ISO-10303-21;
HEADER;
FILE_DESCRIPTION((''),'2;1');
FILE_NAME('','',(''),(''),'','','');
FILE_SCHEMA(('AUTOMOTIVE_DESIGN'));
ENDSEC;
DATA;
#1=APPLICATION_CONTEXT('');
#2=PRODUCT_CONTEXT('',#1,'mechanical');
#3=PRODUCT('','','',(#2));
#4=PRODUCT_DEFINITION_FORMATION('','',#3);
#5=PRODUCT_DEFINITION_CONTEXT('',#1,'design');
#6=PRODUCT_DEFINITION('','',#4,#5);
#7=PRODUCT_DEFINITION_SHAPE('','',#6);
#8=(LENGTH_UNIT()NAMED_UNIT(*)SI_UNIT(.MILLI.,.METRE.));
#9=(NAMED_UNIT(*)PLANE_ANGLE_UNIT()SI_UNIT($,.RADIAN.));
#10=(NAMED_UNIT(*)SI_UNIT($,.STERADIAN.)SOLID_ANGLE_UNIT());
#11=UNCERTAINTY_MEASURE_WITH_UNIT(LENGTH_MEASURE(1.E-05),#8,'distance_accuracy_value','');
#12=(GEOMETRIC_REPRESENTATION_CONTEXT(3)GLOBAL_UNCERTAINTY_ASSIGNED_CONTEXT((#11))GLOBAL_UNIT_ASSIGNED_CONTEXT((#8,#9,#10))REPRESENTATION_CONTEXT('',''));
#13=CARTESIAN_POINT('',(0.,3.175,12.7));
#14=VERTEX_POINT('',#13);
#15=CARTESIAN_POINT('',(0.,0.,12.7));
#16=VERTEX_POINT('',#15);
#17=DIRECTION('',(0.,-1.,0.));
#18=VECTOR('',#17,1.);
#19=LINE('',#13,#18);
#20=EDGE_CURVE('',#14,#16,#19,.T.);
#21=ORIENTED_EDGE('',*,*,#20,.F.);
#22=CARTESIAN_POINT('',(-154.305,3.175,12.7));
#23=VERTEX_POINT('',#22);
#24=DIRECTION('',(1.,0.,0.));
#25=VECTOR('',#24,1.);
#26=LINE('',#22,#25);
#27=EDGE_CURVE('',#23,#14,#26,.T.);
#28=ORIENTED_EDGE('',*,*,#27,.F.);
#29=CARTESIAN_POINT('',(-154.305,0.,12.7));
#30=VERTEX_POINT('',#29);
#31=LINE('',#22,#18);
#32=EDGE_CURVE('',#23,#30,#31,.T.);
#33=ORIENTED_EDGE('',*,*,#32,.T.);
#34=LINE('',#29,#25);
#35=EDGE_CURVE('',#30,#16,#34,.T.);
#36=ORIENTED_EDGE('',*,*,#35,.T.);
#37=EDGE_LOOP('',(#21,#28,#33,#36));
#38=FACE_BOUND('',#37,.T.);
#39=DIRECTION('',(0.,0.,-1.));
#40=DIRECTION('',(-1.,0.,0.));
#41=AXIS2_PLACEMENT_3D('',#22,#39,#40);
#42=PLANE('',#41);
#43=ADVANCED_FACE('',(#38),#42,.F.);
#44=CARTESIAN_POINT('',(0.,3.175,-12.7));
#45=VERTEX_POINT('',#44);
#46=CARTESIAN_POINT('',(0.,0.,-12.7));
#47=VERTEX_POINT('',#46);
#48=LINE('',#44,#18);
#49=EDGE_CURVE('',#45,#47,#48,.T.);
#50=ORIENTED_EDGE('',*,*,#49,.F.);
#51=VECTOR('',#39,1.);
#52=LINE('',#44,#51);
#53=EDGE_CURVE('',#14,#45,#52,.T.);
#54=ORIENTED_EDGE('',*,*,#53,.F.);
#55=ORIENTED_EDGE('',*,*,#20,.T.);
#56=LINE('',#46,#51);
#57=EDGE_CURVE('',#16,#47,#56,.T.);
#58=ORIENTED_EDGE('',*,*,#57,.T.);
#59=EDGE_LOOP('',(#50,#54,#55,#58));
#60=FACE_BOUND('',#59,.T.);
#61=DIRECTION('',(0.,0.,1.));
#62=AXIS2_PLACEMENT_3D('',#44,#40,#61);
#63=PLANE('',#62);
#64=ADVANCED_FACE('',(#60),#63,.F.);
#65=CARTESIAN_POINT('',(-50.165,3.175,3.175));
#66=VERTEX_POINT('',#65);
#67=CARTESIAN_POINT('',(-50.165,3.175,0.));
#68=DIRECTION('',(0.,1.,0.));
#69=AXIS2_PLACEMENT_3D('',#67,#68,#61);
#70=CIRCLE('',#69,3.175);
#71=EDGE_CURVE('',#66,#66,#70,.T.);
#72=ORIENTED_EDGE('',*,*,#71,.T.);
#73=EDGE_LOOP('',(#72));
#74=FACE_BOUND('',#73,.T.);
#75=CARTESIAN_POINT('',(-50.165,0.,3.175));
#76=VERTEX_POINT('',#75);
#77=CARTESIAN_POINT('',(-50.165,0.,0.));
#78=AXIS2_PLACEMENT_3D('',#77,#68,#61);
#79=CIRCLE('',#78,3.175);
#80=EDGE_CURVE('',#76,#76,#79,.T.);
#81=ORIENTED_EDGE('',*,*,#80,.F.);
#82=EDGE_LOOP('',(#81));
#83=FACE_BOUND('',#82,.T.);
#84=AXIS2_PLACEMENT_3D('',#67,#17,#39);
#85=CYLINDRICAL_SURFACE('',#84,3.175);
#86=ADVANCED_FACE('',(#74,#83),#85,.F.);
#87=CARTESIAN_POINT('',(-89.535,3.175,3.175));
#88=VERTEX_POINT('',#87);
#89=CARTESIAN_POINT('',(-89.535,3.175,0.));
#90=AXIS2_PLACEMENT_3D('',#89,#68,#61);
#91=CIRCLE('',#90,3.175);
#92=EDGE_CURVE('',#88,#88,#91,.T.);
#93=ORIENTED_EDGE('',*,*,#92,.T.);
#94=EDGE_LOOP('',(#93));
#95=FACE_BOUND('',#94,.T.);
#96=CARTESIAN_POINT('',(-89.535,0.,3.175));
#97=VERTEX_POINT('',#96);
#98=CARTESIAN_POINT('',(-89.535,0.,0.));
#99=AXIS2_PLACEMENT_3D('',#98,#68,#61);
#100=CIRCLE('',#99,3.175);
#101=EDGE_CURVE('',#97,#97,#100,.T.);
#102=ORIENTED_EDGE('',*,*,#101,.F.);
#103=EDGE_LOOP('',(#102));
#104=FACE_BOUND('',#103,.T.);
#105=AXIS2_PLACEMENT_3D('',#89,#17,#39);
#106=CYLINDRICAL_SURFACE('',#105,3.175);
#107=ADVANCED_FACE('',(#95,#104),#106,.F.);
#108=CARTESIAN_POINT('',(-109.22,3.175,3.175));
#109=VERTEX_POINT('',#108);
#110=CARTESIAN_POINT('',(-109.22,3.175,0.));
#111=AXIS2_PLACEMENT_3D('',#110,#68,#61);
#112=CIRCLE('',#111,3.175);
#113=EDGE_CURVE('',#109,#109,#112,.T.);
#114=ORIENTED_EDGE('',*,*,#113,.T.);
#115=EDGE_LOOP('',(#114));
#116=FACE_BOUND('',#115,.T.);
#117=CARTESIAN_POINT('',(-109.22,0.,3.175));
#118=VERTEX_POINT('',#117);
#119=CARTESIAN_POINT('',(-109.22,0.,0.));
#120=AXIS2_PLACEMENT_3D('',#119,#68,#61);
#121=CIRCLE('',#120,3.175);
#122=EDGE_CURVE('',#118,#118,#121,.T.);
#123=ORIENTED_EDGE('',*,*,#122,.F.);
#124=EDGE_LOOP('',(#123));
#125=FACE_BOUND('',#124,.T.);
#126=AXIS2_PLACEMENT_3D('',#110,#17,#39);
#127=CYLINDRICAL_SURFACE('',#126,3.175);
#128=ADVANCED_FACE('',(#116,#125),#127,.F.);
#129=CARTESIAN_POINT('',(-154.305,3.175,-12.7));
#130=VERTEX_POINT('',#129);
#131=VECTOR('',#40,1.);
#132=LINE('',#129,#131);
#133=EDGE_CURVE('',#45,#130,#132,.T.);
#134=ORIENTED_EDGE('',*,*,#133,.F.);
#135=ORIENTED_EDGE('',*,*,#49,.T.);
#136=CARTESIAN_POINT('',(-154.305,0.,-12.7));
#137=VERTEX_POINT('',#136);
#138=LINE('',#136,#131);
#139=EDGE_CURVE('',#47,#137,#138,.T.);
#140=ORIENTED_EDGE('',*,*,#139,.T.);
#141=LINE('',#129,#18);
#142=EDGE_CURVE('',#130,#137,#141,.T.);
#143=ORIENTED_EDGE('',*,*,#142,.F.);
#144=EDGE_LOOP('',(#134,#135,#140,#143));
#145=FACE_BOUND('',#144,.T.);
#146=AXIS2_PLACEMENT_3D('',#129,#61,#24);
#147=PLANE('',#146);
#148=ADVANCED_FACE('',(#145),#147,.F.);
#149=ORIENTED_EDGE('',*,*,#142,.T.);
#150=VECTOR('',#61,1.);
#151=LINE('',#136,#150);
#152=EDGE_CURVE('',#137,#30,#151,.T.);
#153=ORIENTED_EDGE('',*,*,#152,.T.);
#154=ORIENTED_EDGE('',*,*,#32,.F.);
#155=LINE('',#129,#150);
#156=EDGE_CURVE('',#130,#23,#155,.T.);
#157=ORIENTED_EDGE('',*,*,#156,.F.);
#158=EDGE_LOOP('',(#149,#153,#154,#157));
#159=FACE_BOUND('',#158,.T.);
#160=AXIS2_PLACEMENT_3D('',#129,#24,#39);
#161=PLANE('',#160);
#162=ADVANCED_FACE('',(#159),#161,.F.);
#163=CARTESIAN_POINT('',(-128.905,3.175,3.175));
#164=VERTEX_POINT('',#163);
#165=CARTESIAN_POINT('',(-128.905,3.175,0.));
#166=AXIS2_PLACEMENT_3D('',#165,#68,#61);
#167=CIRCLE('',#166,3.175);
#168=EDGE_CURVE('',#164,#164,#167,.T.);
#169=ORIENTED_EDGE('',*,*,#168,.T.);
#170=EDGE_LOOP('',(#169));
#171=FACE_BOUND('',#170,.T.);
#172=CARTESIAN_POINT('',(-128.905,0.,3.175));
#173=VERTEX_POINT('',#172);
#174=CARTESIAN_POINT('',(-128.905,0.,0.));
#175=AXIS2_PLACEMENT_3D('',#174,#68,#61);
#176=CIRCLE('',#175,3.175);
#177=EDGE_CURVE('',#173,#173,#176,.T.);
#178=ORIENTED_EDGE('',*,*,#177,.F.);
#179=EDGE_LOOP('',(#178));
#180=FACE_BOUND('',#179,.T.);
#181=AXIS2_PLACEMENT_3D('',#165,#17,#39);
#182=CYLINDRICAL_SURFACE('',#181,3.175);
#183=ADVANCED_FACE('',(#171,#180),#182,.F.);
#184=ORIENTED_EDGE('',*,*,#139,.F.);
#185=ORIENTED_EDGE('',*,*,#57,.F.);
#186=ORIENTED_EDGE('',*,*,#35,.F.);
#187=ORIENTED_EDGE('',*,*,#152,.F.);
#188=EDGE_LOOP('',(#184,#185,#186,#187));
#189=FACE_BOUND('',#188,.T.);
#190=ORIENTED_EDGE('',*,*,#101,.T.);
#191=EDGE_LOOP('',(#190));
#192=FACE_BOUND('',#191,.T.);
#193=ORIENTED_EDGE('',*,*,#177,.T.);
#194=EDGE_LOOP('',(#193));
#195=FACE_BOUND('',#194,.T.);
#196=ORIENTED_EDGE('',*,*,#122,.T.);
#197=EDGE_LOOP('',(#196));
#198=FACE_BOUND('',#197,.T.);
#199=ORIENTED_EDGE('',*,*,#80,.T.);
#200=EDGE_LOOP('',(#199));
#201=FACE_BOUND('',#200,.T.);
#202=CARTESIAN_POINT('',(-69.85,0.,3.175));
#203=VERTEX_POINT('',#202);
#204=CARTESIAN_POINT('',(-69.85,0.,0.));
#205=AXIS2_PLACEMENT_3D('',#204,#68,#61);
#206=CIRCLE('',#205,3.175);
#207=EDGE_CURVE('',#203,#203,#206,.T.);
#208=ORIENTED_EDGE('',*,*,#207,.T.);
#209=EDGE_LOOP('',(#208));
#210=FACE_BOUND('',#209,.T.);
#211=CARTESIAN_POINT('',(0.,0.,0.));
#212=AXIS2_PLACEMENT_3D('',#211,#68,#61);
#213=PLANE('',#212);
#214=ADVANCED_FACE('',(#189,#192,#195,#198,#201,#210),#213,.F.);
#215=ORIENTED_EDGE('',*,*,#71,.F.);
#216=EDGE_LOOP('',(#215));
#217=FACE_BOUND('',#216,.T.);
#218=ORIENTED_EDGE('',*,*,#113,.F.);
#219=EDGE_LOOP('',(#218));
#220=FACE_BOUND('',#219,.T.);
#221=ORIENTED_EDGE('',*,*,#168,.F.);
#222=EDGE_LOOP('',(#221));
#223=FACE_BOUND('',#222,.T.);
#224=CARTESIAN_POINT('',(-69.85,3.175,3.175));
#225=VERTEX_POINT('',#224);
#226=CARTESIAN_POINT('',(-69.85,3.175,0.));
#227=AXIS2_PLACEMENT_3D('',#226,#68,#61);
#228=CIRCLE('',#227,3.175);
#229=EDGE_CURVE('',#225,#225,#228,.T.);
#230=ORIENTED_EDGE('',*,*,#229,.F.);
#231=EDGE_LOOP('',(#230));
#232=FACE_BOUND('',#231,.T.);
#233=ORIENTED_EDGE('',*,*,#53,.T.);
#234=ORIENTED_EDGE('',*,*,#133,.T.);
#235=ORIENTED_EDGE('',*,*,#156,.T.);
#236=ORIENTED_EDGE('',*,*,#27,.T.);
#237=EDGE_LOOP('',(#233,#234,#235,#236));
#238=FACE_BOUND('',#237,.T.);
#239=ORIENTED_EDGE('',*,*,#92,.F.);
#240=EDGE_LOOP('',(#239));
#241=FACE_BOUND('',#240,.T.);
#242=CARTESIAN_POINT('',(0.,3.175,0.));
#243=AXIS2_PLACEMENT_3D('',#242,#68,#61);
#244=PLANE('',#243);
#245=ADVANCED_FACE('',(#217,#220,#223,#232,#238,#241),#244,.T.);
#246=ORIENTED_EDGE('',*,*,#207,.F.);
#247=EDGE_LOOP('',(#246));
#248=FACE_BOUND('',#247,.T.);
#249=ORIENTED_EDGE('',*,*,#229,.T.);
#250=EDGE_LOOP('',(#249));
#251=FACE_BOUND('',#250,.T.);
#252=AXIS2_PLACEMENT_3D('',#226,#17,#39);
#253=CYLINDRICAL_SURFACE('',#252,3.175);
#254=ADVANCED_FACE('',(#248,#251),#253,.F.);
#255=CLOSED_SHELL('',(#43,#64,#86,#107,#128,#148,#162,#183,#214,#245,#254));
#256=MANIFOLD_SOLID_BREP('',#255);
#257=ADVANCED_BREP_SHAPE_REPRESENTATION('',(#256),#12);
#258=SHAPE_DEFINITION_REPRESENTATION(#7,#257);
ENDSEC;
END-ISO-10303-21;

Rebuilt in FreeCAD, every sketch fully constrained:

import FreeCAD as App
import Part
import Sketcher
from FreeCAD import Vector
Q = App.Units.Quantity

doc = App.newDocument("Part")
body = doc.addObject("PartDesign::Body", "Body")

# Sketch on XZ plane
sketch1 = body.newObject("Sketcher::SketchObject", "Sketch")
sketch1.AttachmentSupport = (doc.getObject("XZ_Plane"), [""])
sketch1.MapMode = "FlatFace"
sketch1.addGeometry(Part.LineSegment(Vector(-154.305, -12.7, 0), Vector(-154.305, 12.7, 0)), False)
sketch1.addGeometry(Part.LineSegment(Vector(-154.305, 12.7, 0), Vector(0, 12.7, 0)), False)
sketch1.addGeometry(Part.LineSegment(Vector(0, 12.7, 0), Vector(0, -12.7, 0)), False)
sketch1.addGeometry(Part.LineSegment(Vector(0, -12.7, 0), Vector(-154.305, -12.7, 0)), False)
sketch1.addGeometry(Part.Circle(Vector(-128.905, 0, 0), Vector(0, 0, 1), 3.175), False)
sketch1.addGeometry(Part.Circle(Vector(-109.22, 0, 0), Vector(0, 0, 1), 3.175), False)
sketch1.addGeometry(Part.Circle(Vector(-89.535, 0, 0), Vector(0, 0, 1), 3.175), False)
sketch1.addGeometry(Part.Circle(Vector(-69.85, 0, 0), Vector(0, 0, 1), 3.175), False)
sketch1.addGeometry(Part.Circle(Vector(-50.165, 0, 0), Vector(0, 0, 1), 3.175), False)
sketch1.addConstraint(Sketcher.Constraint("Coincident", 0, 2, 1, 1))
sketch1.addConstraint(Sketcher.Constraint("Coincident", 1, 2, 2, 1))
sketch1.addConstraint(Sketcher.Constraint("Coincident", 2, 2, 3, 1))
sketch1.addConstraint(Sketcher.Constraint("Coincident", 3, 2, 0, 1))
sketch1.addConstraint(Sketcher.Constraint("Vertical", 0))
sketch1.addConstraint(Sketcher.Constraint("Horizontal", 1))
sketch1.addConstraint(Sketcher.Constraint("Vertical", 2))
sketch1.addConstraint(Sketcher.Constraint("Horizontal", 3))
sketch1.addConstraint(Sketcher.Constraint("Equal", 4, 5))
sketch1.addConstraint(Sketcher.Constraint("Equal", 5, 6))
sketch1.addConstraint(Sketcher.Constraint("Equal", 6, 7))
sketch1.addConstraint(Sketcher.Constraint("Equal", 7, 8))
sketch1.addConstraint(Sketcher.Constraint("Symmetric", 1, 2, 2, 2, -1, 1))
sketch1.addConstraint(Sketcher.Constraint("PointOnObject", 4, 3, -1))
sketch1.addConstraint(Sketcher.Constraint("PointOnObject", 5, 3, -1))
sketch1.addConstraint(Sketcher.Constraint("PointOnObject", 6, 3, -1))
sketch1.addConstraint(Sketcher.Constraint("PointOnObject", 7, 3, -1))
sketch1.addConstraint(Sketcher.Constraint("PointOnObject", 8, 3, -1))
sketch1.addConstraint(Sketcher.Constraint("Diameter", 4, Q("0.25 in")))
sketch1.addConstraint(Sketcher.Constraint("DistanceY", 0, 1, 0, 2, Q("1 in")))
sketch1.addConstraint(Sketcher.Constraint("DistanceX", 0, 2, 4, 3, Q("1 in")))
sketch1.addConstraint(Sketcher.Constraint("DistanceX", 5, 3, -1, 1, Q("4.3 in")))
sketch1.addConstraint(Sketcher.Constraint("DistanceX", 4, 3, 8, 3, Q("3.1 in")))
sketch1.addConstraint(Sketcher.Constraint("DistanceX", 1, 1, 1, 2, Q("6.075 in")))
sketch1.addConstraint(Sketcher.Constraint("DistanceX", 7, 3, -1, 1, Q("2.75 in")))
sketch1.addConstraint(Sketcher.Constraint("DistanceX", 4, 3, 6, 3, Q("1.55 in")))
pad1 = body.newObject("PartDesign::Pad", "Pad")
pad1.Profile = sketch1
pad1.Length = Q("0.125 in")
pad1.Reversed = True

doc.recompute()
